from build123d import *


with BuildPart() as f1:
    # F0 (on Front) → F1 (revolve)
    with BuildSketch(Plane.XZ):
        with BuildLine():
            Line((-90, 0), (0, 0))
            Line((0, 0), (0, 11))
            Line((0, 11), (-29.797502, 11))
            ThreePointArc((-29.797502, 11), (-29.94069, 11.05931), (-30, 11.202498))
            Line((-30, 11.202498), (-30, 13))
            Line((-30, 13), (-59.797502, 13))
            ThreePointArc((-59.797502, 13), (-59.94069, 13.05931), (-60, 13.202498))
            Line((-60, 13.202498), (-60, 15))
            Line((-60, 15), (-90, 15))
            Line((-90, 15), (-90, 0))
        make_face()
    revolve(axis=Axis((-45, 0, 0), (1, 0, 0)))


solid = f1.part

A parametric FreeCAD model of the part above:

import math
import FreeCAD as App
import Part
import Sketcher

doc = App.newDocument("Part")
body = doc.addObject("PartDesign::Body", "Body")

sketch1 = body.newObject("Sketcher::SketchObject", "Sketch")
sketch1.AttachmentSupport = (doc.getObject("XZ_Plane"), [""])
sketch1.MapMode = "FlatFace"
sketch1.addGeometry(Part.LineSegment(App.Vector(-90, 0, 0), App.Vector(0, 0, 0)), False)
sketch1.addGeometry(Part.LineSegment(App.Vector(0, 0, 0), App.Vector(0, 11, 0)), False)
sketch1.addGeometry(Part.LineSegment(App.Vector(0, 11, 0), App.Vector(-29.8, 11, 0)), False)
sketch1.addGeometry(Part.ArcOfCircle(Part.Circle(App.Vector(-29.8, 11.2, 0), App.Vector(0, 0, 1), 0.2), math.radians(180), math.radians(270)), False)
sketch1.addGeometry(Part.LineSegment(App.Vector(-30, 11.2, 0), App.Vector(-30, 13, 0)), False)
sketch1.addGeometry(Part.LineSegment(App.Vector(-30, 13, 0), App.Vector(-59.8, 13, 0)), False)
sketch1.addGeometry(Part.ArcOfCircle(Part.Circle(App.Vector(-59.8, 13.2, 0), App.Vector(0, 0, 1), 0.2), math.radians(180), math.radians(270)), False)
sketch1.addGeometry(Part.LineSegment(App.Vector(-60, 13.2, 0), App.Vector(-60, 15, 0)), False)
sketch1.addGeometry(Part.LineSegment(App.Vector(-60, 15, 0), App.Vector(-90, 15, 0)), False)
sketch1.addGeometry(Part.LineSegment(App.Vector(-90, 15, 0), App.Vector(-90, 0, 0)), False)
sketch1.addConstraint(Sketcher.Constraint("Coincident", 0, 2, 1, 1))
sketch1.addConstraint(Sketcher.Constraint("Coincident", 1, 2, 2, 1))
sketch1.addConstraint(Sketcher.Constraint("Coincident", 2, 2, 3, 2))
sketch1.addConstraint(Sketcher.Constraint("Coincident", 3, 1, 4, 1))
sketch1.addConstraint(Sketcher.Constraint("Coincident", 4, 2, 5, 1))
sketch1.addConstraint(Sketcher.Constraint("Coincident", 5, 2, 6, 2))
sketch1.addConstraint(Sketcher.Constraint("Coincident", 6, 1, 7, 1))
sketch1.addConstraint(Sketcher.Constraint("Coincident", 7, 2, 8, 1))
sketch1.addConstraint(Sketcher.Constraint("Coincident", 8, 2, 9, 1))
sketch1.addConstraint(Sketcher.Constraint("Coincident", 9, 2, 0, 1))
sketch1.addConstraint(Sketcher.Constraint("Horizontal", 0))
sketch1.addConstraint(Sketcher.Constraint("Vertical", 1))
sketch1.addConstraint(Sketcher.Constraint("Horizontal", 2))
sketch1.addConstraint(Sketcher.Constraint("Vertical", 4))
sketch1.addConstraint(Sketcher.Constraint("Horizontal", 5))
sketch1.addConstraint(Sketcher.Constraint("Vertical", 7))
sketch1.addConstraint(Sketcher.Constraint("Horizontal", 8))
sketch1.addConstraint(Sketcher.Constraint("Vertical", 9))
sketch1.addConstraint(Sketcher.Constraint("Coincident", 0, 2, -1, 1))
sketch1.addConstraint(Sketcher.Constraint("Equal", 3, 6))
sketch1.addConstraint(Sketcher.Constraint("Vertical", 3, 3, 2, 2))
sketch1.addConstraint(Sketcher.Constraint("Vertical", 6, 3, 5, 2))
sketch1.addConstraint(Sketcher.Constraint("Equal", 2, 5))
sketch1.addConstraint(Sketcher.Constraint("Equal", 4, 7))
sketch1.addConstraint(Sketcher.Constraint("DistanceX", 0, 1, 0, 2, 90.0))
sketch1.addConstraint(Sketcher.Constraint("DistanceX", 8, 2, 8, 1, 30.0))
sketch1.addConstraint(Sketcher.Constraint("DistanceY", 1, 1, 1, 2, 11.0))
sketch1.addConstraint(Sketcher.Constraint("DistanceY", 9, 2, 9, 1, 15.0))
sketch1.addConstraint(Sketcher.Constraint("DistanceY", -1, 1, 4, 2, 13.0))
sketch1.addConstraint(Sketcher.Constraint("DistanceY", 3, 1, 6, 3, 1.999999))
sketch1.addConstraint(Sketcher.Constraint("DistanceY", 4, 1, 4, 2, 1.797502))
revolution = body.newObject("PartDesign::Revolution", "Revolution")
revolution.Profile = sketch1
revolution.ReferenceAxis = (sketch1, ["H_Axis"])
revolution.Angle = 360

doc.recompute()
